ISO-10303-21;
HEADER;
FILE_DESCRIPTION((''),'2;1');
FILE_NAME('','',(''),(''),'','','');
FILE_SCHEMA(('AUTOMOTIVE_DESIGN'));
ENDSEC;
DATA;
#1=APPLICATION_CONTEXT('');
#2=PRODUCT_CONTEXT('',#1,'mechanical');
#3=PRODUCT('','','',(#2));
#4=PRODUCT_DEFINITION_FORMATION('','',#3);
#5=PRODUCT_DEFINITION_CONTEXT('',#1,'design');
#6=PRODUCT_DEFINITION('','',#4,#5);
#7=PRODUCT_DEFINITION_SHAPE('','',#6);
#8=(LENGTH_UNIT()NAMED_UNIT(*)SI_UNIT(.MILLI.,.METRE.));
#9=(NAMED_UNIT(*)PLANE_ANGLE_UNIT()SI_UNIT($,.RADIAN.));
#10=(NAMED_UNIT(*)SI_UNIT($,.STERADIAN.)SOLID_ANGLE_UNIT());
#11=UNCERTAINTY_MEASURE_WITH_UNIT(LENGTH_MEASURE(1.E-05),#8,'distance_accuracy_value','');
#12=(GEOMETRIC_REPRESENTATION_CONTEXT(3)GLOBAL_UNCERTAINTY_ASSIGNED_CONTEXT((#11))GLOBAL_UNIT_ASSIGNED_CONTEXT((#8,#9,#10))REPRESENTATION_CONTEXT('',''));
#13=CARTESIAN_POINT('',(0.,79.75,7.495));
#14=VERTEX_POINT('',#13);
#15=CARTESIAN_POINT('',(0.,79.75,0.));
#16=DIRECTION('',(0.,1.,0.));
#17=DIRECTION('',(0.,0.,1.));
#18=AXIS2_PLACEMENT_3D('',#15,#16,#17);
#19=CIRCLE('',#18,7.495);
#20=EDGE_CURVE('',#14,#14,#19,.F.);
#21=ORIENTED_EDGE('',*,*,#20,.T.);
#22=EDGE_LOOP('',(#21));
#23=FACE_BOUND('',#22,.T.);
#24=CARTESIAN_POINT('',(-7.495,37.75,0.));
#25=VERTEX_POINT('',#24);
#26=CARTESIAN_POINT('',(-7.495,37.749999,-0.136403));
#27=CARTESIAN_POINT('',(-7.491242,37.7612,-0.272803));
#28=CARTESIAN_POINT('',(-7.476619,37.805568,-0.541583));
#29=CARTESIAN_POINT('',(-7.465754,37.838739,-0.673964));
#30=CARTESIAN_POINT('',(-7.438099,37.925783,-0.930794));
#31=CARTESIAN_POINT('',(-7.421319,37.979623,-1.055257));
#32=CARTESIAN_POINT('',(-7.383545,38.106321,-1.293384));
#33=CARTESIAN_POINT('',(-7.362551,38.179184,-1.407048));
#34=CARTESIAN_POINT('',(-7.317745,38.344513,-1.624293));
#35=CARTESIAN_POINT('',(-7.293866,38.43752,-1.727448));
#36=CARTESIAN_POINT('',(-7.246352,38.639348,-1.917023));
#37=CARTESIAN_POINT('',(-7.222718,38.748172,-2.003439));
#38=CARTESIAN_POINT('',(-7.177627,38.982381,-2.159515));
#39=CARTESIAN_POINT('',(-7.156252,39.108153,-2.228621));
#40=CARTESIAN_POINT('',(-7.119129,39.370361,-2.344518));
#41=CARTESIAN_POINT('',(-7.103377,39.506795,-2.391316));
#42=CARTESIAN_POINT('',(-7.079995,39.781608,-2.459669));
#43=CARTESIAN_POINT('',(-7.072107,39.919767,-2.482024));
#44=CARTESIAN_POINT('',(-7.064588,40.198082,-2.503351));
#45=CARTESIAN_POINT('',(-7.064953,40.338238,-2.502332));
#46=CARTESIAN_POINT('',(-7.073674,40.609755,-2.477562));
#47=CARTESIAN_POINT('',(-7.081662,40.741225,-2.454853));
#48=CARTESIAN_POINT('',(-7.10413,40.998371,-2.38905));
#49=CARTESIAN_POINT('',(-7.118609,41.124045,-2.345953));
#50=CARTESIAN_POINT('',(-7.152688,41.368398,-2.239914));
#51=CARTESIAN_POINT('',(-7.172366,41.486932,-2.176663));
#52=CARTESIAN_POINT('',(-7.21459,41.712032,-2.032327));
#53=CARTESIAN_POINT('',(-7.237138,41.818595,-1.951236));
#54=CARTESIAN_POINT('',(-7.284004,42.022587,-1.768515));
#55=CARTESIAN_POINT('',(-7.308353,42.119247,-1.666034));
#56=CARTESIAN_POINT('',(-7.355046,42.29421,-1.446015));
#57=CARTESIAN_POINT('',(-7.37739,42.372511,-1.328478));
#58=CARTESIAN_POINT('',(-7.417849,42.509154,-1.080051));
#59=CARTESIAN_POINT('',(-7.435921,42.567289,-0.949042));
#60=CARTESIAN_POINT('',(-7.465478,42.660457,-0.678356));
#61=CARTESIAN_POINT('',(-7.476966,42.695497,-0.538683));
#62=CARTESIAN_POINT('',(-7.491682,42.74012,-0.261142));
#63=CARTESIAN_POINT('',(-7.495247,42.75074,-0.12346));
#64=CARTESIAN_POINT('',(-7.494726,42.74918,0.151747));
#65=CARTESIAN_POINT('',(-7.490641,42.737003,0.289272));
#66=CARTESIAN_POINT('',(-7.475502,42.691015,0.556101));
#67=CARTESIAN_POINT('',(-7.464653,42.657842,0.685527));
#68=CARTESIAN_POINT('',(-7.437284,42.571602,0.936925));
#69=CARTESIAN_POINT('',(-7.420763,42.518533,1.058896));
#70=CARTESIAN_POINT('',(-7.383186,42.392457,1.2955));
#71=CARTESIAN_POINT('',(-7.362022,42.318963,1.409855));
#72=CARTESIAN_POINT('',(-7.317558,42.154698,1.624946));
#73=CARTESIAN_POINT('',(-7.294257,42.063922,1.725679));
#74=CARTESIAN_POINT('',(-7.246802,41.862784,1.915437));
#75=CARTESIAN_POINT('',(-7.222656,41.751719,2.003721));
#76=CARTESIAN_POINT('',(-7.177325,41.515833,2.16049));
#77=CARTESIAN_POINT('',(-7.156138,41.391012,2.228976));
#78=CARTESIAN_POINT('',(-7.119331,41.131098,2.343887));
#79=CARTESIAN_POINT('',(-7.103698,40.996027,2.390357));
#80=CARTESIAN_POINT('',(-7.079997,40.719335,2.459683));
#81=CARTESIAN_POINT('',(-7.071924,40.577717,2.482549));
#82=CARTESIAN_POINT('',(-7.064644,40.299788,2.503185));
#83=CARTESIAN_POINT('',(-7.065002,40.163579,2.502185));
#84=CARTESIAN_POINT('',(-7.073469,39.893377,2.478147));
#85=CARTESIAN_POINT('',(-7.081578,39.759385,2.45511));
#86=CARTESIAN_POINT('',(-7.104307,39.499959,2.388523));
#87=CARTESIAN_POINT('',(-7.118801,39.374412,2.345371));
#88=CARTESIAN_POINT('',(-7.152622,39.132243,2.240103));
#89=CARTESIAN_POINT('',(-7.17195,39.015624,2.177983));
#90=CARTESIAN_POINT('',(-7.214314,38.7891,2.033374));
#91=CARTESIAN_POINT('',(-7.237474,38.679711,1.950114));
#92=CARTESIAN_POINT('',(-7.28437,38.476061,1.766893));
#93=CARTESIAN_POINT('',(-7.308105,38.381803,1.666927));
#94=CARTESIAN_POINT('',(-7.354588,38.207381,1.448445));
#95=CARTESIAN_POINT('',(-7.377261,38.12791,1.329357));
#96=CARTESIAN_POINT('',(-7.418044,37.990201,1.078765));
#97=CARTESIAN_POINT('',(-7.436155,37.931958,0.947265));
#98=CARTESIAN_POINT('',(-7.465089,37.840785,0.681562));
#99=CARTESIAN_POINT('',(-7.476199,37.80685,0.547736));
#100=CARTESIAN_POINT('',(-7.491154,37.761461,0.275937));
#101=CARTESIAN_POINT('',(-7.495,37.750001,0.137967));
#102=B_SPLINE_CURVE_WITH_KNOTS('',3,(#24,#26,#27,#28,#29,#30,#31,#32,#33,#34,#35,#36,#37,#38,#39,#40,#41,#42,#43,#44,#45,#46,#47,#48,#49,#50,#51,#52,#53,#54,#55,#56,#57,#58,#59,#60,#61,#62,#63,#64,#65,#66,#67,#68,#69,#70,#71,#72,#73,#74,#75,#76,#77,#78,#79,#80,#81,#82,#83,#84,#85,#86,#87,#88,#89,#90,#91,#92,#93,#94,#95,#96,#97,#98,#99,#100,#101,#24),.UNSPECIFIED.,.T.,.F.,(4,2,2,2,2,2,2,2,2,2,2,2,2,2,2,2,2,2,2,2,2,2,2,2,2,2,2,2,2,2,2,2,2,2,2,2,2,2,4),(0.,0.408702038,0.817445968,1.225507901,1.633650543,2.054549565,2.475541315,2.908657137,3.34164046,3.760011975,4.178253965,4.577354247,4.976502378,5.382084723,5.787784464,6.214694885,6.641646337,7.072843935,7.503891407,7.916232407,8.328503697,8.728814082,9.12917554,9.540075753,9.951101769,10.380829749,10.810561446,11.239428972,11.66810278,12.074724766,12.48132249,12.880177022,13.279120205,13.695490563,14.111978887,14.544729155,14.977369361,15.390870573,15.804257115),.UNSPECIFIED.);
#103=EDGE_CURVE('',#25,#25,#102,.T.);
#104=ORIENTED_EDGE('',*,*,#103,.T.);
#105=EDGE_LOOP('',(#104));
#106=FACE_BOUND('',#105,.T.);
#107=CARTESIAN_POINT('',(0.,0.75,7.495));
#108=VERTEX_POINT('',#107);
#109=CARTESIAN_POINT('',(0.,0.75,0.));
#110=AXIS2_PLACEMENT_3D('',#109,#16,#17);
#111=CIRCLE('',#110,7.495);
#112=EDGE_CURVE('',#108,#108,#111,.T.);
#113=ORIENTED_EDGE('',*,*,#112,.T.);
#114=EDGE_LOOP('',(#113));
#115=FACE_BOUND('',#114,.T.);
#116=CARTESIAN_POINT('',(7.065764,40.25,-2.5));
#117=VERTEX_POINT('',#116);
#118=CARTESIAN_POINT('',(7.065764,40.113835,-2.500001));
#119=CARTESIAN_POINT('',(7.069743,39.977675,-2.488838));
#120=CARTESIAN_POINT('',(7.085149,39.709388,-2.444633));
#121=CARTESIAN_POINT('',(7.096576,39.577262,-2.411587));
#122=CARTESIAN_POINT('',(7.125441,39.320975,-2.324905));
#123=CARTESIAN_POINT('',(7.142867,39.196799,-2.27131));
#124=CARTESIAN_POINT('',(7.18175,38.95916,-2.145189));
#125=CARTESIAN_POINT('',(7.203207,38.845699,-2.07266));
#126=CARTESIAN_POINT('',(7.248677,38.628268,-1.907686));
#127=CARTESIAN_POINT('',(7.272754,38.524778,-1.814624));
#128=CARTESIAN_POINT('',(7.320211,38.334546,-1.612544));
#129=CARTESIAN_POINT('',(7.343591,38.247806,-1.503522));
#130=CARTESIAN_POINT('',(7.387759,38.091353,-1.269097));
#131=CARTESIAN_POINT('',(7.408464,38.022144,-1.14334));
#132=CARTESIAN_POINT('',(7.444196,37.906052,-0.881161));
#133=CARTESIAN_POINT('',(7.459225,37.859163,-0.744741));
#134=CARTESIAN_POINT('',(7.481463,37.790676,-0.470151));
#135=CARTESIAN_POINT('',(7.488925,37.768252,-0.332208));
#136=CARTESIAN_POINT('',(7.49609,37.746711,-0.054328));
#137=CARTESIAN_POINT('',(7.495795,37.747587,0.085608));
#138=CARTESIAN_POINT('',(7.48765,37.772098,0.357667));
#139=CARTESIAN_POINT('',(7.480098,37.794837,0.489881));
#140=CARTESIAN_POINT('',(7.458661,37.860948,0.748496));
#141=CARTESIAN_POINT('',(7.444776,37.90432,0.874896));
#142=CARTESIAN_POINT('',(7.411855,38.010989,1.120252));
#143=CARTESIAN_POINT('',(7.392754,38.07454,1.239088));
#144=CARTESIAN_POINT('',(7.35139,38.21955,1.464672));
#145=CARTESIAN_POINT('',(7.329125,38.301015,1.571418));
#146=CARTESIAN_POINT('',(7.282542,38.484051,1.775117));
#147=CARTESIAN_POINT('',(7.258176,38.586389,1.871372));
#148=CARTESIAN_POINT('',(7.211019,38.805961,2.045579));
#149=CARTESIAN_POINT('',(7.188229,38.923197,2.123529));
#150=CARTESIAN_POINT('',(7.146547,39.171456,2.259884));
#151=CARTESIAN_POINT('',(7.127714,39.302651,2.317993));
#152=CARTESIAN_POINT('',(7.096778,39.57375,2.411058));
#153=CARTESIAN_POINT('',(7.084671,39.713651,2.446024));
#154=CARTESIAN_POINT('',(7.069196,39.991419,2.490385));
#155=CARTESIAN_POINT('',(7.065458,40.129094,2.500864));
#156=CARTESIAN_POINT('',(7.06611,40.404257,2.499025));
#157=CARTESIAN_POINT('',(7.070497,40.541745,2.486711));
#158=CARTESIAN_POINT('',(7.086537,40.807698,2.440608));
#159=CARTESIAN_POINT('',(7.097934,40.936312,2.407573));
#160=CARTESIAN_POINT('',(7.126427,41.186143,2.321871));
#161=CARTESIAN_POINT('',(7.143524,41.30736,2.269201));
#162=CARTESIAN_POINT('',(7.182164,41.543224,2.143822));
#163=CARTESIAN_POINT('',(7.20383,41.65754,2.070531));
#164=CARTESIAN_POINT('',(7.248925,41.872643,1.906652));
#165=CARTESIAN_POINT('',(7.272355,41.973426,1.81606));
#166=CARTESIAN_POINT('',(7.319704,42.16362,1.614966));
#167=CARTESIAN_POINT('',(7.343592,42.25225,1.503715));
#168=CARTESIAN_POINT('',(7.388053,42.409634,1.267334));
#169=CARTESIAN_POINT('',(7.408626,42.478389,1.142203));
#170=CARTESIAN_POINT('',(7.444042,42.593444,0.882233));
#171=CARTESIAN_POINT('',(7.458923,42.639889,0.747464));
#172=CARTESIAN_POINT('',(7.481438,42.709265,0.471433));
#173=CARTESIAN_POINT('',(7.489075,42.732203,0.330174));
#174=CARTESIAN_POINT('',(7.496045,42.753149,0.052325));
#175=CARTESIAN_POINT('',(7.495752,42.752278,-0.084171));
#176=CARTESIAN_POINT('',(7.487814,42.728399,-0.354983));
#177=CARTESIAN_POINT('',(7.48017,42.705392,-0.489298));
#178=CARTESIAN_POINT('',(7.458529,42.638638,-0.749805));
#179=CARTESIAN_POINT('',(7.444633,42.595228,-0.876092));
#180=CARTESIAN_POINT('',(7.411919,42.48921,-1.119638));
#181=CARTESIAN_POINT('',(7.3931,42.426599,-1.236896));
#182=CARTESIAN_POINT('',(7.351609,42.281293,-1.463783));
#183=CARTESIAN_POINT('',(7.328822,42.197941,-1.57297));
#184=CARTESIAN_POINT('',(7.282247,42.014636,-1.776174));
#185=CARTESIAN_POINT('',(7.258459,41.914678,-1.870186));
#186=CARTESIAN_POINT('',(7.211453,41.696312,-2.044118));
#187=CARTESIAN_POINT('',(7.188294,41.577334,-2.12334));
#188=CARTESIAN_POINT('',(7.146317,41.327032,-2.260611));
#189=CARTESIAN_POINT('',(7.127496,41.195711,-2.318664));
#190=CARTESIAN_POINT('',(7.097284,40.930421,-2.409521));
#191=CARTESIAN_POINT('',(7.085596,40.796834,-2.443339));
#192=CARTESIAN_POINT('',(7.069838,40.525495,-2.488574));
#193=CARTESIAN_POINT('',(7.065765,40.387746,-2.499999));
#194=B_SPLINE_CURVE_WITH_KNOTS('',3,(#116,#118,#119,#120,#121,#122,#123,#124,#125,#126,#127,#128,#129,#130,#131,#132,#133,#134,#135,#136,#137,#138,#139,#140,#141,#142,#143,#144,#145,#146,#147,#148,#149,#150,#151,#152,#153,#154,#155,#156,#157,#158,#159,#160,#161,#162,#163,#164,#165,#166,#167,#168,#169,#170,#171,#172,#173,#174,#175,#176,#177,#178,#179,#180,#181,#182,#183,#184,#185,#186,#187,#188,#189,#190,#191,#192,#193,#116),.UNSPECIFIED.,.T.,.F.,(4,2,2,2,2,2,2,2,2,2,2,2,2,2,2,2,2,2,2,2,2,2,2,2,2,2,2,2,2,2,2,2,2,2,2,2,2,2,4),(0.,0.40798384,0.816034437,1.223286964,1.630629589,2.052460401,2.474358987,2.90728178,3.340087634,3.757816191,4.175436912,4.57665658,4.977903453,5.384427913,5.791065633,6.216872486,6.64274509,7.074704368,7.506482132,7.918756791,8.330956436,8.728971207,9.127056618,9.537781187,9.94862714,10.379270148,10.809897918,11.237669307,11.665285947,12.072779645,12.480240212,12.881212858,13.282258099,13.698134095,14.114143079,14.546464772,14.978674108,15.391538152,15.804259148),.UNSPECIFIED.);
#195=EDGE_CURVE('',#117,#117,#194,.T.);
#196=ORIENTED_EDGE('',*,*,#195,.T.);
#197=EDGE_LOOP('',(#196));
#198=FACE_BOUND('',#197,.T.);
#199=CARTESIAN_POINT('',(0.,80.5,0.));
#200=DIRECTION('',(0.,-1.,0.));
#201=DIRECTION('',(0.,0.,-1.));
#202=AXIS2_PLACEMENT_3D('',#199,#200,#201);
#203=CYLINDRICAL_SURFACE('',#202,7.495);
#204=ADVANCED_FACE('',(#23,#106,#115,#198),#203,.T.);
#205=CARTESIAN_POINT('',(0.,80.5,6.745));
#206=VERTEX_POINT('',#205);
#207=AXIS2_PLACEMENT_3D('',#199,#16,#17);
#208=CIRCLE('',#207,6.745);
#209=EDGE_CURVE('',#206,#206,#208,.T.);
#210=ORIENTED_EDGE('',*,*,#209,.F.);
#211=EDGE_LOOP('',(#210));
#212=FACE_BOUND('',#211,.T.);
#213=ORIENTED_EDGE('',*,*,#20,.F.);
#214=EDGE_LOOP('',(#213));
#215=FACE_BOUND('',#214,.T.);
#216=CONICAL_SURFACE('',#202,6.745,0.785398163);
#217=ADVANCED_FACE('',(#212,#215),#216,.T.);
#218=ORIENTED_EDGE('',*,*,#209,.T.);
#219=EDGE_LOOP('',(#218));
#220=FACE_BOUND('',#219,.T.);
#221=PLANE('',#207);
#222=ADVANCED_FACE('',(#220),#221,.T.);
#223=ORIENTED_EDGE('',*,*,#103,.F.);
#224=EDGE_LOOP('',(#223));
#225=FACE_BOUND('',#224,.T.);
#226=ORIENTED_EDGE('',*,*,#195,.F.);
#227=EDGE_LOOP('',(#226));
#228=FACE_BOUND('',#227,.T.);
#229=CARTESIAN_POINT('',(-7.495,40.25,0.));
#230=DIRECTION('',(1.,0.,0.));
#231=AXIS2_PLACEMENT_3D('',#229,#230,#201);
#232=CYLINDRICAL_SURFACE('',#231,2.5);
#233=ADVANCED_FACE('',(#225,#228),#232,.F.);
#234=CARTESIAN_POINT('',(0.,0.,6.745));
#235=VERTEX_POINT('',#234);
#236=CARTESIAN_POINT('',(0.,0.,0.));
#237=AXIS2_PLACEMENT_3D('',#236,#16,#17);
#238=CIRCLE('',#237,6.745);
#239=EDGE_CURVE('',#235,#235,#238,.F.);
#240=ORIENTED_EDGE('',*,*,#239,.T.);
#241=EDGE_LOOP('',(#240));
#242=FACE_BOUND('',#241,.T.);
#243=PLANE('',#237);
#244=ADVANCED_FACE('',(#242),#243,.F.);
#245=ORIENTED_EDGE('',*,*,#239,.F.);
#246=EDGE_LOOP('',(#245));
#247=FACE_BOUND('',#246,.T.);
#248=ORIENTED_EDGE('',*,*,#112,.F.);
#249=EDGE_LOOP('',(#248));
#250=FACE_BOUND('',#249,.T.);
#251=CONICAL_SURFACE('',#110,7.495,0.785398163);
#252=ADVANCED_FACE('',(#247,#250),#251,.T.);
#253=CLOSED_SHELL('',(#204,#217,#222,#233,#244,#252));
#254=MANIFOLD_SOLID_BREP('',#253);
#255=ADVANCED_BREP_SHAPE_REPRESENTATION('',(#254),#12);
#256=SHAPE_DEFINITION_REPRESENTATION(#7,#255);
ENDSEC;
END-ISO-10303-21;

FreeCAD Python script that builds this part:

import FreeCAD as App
import Part
import Sketcher

V = App.Vector


def edges_at(feature, points):
    """Names of the edges that pass closest to the given points."""
    edges = feature.Shape.Edges
    near = lambda p: min(range(len(edges)), key=lambda i: edges[i].distToShape(Part.Vertex(*p))[0])
    return sorted({f"Edge{near(p) + 1}" for p in points})

doc = App.newDocument("Part")
body = doc.addObject("PartDesign::Body", "Body")

sketch1 = doc.addObject("Sketcher::SketchObject", "Sketch")
body.addObject(sketch1)
sketch1.AttachmentSupport = (doc.XZ_Plane, [""])
sketch1.MapMode = "FlatFace"
sketch1.addGeometry(Part.Circle(V(0, 0, 0), V(0, 0, 1), 7.495), False)
sketch1.addConstraint(Sketcher.Constraint("Coincident", 0, 3, -1, 1))
sketch1.addConstraint(Sketcher.Constraint("Diameter", 0, 14.99))
pad1 = doc.addObject("PartDesign::Pad", "Pad")
body.addObject(pad1)
pad1.Profile = sketch1
pad1.Length = 80.5
pad1.Reversed = True

sketch2 = doc.addObject("Sketcher::SketchObject", "Sketch001")
body.addObject(sketch2)
sketch2.AttachmentSupport = (doc.YZ_Plane, [""])
sketch2.MapMode = "FlatFace"
sketch2.addGeometry(Part.Circle(V(40.25, 0, 0), V(0, 0, 1), 2.5), False)
sketch2.addConstraint(Sketcher.Constraint("PointOnObject", 0, 3, -1))
sketch2.addConstraint(Sketcher.Constraint("Diameter", 0, 5.0))
sketch2.addConstraint(Sketcher.Constraint("DistanceX", -1, 1, 0, 3, 40.25))
pocket1 = doc.addObject("PartDesign::Pocket", "Pocket")
body.addObject(pocket1)
pocket1.Profile = sketch2
pocket1.Type = "ThroughAll"
pocket1.Midplane = True
doc.recompute()

chamfer = doc.addObject("PartDesign::Chamfer", "Chamfer")
body.addObject(chamfer)
chamfer.Base = (pocket1, edges_at(pocket1, [(0, 0, -7.495), (0, 80.5, -7.495)]))
chamfer.Size = 0.75

doc.recompute()
